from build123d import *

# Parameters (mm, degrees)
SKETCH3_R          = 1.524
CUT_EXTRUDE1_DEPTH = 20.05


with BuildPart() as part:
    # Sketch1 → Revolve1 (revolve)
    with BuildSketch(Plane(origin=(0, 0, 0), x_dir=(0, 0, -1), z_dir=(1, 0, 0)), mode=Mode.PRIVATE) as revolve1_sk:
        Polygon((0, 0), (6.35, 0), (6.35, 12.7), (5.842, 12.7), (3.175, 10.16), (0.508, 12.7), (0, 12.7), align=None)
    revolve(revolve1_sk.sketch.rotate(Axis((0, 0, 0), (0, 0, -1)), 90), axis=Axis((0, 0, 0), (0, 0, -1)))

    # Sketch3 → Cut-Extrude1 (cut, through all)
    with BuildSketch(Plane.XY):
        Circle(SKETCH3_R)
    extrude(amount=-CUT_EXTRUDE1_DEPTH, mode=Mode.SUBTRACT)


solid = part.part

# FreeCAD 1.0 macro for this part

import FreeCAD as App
import Part
import Sketcher

V = App.Vector
Q = App.Units.Quantity


def add_polygon(sketch, points):
    """Adds a closed chain of lines whose ends are joined by coincident constraints."""
    first, n = sketch.GeometryCount, len(points)
    for a, b in zip(points, points[1:] + points[:1]):
        sketch.addGeometry(Part.LineSegment(App.Vector(*a, 0), App.Vector(*b, 0)), False)
    for i in range(n):
        sketch.addConstraint(Sketcher.Constraint("Coincident", first + i, 2, first + (i + 1) % n, 1))

doc = App.newDocument("Part")
body = doc.addObject("PartDesign::Body", "Body")

# Sketch on YZ plane
sketch1 = body.newObject("Sketcher::SketchObject", "Sketch")
sketch1.AttachmentSupport = (doc.getObject("YZ_Plane"), [""])
sketch1.MapMode = "FlatFace"
add_polygon(sketch1, [(0, 0), (0, -6.3), (12.7, -6.3), (12.7, -5.8), (10.2, -3.2), (12.7, -0.5), (12.7, 0)])  # lines 0-6
sketch1.addConstraint([
    Sketcher.Constraint("Vertical", 0),
    Sketcher.Constraint("Horizontal", 1),
    Sketcher.Constraint("Vertical", 2),
    Sketcher.Constraint("Vertical", 5),
    Sketcher.Constraint("Horizontal", 6),
    Sketcher.Constraint("Coincident", 6, 2, -1, 1),
    Sketcher.Constraint("Vertical", 2, 2, 4, 2),
    Sketcher.Constraint("Equal", 2, 5),
    Sketcher.Constraint("Equal", 3, 4),
    Sketcher.Constraint("DistanceX", 1, 1, 1, 2, Q("0.5 in")),
    Sketcher.Constraint("DistanceY", 0, 2, 0, 1, Q("0.25 in")),
    Sketcher.Constraint("DistanceY", 2, 1, 2, 2, Q("0.02 in")),
    Sketcher.Constraint("DistanceX", -1, 1, 3, 2, Q("0.4 in")),
])
revolution = body.newObject("PartDesign::Revolution", "Revolution")
revolution.Profile = sketch1
revolution.ReferenceAxis = (sketch1, ["V_Axis"])
revolution.Angle = 360

# Sketch on XY plane
sketch2 = body.newObject("Sketcher::SketchObject", "Sketch001")
sketch2.AttachmentSupport = (doc.getObject("XY_Plane"), [""])
sketch2.MapMode = "FlatFace"
sketch2.addGeometry(Part.Circle(V(0, 0, 0), V(0, 0, 1), 1.5), False)
sketch2.addConstraint([
    Sketcher.Constraint("Coincident", 0, 3, -1, 1),
    Sketcher.Constraint("Diameter", 0, Q("0.12 in")),
])
pocket1 = body.newObject("PartDesign::Pocket", "Pocket")
pocket1.Profile = sketch2
pocket1.Type = "ThroughAll"

doc.recompute()
